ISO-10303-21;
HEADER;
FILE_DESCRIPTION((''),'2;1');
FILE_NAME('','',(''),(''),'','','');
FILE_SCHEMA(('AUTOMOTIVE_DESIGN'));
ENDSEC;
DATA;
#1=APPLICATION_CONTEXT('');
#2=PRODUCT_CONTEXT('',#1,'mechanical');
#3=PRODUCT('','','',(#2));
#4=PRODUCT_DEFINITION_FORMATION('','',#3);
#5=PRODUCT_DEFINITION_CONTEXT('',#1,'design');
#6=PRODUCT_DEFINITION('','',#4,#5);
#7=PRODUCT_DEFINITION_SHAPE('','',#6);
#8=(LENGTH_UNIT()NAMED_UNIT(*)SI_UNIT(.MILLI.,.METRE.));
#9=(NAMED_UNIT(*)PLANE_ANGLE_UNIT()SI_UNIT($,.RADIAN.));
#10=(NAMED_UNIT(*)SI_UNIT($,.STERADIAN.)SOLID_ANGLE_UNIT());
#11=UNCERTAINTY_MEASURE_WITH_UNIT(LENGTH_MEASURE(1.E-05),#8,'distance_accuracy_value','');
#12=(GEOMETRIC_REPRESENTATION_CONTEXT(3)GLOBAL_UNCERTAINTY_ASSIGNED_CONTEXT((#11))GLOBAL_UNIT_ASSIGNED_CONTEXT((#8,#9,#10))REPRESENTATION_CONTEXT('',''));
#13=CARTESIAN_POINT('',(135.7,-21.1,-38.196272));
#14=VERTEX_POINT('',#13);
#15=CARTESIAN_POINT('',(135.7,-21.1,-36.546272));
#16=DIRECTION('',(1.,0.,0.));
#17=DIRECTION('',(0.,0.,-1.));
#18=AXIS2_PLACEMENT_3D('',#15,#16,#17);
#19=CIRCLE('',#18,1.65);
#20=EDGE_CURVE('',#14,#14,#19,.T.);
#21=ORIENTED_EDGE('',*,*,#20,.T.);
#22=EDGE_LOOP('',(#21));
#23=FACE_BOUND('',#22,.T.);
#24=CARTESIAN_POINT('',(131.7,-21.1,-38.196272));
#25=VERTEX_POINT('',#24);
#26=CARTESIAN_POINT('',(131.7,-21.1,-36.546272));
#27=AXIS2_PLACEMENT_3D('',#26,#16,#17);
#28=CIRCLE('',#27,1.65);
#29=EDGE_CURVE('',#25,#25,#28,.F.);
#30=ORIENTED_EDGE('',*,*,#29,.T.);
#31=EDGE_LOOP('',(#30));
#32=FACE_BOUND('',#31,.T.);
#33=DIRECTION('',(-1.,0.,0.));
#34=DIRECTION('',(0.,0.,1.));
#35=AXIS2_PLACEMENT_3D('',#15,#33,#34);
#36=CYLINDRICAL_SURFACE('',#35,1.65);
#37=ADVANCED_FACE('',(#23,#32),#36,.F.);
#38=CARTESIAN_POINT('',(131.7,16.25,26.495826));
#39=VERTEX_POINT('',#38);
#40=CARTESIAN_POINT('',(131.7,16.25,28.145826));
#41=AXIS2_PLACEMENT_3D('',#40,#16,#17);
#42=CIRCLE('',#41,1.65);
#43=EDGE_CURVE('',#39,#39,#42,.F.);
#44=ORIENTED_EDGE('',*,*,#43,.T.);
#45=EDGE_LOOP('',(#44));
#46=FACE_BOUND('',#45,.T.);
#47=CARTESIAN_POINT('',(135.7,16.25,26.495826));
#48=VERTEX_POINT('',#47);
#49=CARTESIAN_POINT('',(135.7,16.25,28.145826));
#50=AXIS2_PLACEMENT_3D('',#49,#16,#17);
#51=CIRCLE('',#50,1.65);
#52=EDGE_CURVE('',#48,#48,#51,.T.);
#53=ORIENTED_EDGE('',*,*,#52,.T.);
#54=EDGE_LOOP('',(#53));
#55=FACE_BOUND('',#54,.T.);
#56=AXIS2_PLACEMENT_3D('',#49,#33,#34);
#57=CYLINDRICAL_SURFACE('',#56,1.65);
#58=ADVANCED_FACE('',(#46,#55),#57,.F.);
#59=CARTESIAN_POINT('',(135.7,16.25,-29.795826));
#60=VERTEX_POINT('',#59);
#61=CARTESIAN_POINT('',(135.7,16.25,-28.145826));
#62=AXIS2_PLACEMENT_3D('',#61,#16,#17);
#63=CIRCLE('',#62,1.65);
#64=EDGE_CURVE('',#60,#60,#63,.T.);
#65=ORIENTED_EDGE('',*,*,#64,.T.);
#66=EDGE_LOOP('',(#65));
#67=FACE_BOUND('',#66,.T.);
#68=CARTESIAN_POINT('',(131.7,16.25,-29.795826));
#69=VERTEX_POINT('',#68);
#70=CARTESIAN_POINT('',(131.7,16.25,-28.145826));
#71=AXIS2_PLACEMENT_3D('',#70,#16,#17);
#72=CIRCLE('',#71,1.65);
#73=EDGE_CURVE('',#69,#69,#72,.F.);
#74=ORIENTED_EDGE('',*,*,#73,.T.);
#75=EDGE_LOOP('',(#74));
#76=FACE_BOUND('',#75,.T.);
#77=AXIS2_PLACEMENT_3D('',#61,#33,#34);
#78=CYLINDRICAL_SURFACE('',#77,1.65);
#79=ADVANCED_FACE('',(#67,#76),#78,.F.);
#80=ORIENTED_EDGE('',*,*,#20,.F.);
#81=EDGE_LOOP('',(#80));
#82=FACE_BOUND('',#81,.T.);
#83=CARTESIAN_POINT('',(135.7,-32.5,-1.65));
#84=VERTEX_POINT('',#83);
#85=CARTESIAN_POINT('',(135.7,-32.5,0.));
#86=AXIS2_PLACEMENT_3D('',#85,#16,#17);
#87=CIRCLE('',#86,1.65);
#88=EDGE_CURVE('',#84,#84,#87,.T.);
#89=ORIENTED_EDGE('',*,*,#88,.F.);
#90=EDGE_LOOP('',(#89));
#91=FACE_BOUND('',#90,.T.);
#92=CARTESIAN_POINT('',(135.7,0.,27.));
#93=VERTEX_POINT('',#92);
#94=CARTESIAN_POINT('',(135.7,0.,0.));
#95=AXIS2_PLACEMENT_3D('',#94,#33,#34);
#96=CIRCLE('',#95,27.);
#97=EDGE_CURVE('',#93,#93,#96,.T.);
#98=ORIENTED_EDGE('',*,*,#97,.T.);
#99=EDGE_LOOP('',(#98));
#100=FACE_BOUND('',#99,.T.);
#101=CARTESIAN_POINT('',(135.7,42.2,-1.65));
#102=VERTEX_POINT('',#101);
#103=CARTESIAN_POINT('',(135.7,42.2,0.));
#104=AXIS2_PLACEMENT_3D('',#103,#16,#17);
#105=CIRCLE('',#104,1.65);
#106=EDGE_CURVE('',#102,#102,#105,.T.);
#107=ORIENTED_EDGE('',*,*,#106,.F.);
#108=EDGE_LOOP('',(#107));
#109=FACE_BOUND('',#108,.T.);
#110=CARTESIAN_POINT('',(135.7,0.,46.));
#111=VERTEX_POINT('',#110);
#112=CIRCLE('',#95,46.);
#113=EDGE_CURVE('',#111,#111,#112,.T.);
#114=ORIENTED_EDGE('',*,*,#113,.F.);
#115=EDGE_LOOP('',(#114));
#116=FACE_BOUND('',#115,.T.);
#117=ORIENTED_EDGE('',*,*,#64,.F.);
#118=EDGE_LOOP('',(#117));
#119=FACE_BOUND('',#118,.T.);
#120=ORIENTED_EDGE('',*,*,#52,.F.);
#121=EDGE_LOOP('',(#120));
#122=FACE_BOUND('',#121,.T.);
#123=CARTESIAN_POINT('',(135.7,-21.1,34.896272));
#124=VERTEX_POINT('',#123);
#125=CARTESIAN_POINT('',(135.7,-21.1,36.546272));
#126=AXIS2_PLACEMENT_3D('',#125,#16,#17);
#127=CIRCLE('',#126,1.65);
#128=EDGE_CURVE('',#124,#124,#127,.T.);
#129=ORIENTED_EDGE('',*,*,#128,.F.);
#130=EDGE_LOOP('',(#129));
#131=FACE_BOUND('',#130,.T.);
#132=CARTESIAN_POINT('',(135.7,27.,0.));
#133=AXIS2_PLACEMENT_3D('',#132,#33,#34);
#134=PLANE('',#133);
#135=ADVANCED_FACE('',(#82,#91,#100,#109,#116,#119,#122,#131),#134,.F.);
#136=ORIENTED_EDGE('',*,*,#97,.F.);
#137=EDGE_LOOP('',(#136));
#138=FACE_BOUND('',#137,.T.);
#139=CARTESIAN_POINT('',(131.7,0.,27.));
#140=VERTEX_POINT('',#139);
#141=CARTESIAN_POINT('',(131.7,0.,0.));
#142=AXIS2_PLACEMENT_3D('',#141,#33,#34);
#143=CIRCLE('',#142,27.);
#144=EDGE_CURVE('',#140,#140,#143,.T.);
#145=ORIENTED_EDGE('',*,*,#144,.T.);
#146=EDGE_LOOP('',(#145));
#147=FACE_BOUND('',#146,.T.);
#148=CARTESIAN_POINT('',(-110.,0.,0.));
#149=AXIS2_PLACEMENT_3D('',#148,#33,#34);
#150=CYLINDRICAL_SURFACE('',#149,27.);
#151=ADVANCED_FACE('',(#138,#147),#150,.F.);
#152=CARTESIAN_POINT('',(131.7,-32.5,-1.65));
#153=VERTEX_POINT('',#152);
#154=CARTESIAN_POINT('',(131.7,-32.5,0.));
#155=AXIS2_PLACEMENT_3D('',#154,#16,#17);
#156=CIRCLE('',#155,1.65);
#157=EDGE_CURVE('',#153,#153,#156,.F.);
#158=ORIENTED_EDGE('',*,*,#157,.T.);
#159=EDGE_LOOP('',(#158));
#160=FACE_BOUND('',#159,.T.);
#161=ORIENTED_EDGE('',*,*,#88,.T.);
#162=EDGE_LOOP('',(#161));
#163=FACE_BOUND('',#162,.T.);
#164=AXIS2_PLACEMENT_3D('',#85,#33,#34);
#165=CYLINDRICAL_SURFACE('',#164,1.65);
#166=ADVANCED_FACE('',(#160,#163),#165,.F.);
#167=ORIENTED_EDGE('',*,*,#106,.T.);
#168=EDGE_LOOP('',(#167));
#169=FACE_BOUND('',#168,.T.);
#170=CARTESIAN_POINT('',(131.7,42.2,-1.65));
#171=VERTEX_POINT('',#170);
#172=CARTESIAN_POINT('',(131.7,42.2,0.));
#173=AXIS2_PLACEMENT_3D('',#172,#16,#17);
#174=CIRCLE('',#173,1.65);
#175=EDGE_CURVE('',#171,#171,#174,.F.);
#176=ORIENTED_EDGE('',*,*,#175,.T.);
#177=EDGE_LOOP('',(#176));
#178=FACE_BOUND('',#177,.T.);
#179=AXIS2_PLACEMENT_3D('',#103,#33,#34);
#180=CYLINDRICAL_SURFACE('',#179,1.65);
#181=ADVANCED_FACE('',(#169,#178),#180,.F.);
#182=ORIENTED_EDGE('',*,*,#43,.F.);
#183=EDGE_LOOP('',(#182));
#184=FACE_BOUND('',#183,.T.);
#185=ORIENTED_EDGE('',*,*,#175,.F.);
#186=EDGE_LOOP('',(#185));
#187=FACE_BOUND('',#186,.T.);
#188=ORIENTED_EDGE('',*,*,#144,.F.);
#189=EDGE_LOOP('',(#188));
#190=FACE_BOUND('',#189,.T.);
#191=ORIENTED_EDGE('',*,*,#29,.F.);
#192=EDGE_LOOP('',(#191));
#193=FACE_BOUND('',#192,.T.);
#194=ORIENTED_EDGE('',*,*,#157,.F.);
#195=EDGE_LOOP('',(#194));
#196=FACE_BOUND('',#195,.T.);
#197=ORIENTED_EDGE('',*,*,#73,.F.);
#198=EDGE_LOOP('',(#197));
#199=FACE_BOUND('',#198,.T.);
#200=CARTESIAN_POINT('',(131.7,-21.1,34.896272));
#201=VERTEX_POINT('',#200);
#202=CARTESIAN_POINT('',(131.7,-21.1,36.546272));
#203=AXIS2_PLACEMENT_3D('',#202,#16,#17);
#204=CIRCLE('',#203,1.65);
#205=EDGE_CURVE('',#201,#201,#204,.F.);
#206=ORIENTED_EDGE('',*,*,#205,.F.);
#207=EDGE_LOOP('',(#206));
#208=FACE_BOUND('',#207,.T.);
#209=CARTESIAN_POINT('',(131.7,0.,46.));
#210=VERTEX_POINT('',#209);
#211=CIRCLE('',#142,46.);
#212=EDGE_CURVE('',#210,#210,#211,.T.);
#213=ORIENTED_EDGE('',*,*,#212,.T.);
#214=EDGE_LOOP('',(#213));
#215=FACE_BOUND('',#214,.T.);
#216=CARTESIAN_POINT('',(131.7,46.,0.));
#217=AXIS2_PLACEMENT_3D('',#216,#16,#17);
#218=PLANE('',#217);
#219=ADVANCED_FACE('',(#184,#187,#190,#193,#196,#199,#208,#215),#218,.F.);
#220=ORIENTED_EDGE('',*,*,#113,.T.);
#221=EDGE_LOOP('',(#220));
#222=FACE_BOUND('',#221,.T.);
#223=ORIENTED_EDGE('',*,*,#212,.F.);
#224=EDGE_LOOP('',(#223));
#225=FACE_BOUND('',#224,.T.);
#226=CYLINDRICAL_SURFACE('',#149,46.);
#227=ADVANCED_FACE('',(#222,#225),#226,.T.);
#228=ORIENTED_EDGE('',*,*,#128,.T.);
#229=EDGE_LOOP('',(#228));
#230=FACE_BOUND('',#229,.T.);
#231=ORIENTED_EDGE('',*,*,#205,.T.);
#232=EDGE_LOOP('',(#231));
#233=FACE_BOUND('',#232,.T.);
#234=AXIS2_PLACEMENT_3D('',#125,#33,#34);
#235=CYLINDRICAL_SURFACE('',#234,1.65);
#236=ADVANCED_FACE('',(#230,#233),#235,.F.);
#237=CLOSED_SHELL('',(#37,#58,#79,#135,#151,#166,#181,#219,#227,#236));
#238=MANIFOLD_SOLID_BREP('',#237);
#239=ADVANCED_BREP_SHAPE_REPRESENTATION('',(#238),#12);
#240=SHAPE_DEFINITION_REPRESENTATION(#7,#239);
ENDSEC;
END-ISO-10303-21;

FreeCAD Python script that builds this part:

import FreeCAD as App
import Part
import Sketcher

doc = App.newDocument("Part")
body = doc.addObject("PartDesign::Body", "Body")

sketch1 = body.newObject("Sketcher::SketchObject", "Sketch")
sketch1.AttachmentSupport = (doc.getObject("XY_Plane"), [""])
sketch1.MapMode = "FlatFace"
sketch1.addGeometry([
    Part.LineSegment(App.Vector(131.7, 46, 0), App.Vector(131.7, 27, 0)),
    Part.LineSegment(App.Vector(131.7, 27, 0), App.Vector(135.7, 27, 0)),
    Part.LineSegment(App.Vector(135.7, 27, 0), App.Vector(135.7, 46, 0)),
    Part.LineSegment(App.Vector(135.7, 46, 0), App.Vector(131.7, 46, 0)),
], False)
sketch1.addConstraint([
    Sketcher.Constraint("Coincident", 0, 2, 1, 1),
    Sketcher.Constraint("Coincident", 1, 2, 2, 1),
    Sketcher.Constraint("Coincident", 2, 2, 3, 1),
    Sketcher.Constraint("Coincident", 3, 2, 0, 1),
    Sketcher.Constraint("Vertical", 0),
    Sketcher.Constraint("Horizontal", 1),
    Sketcher.Constraint("Vertical", 2),
    Sketcher.Constraint("Horizontal", 3),
    Sketcher.Constraint("DistanceX", 1, 1, 1, 2, 4.0),
    Sketcher.Constraint("DistanceY", 0, 2, 0, 1, 19.0),
    Sketcher.Constraint("DistanceY", -1, 1, 0, 2, 27.0),
    Sketcher.Constraint("DistanceX", -1, 1, 0, 2, 131.7),
])
revolution = body.newObject("PartDesign::Revolution", "Revolution")
revolution.Profile = sketch1
revolution.ReferenceAxis = (sketch1, ["H_Axis"])
revolution.Angle = 360

sketch2 = body.newObject("Sketcher::SketchObject", "Sketch001")
sketch2.AttachmentSupport = (doc.getObject("YZ_Plane"), [""])
sketch2.MapMode = "FlatFace"
sketch2.addGeometry([
    Part.Circle(App.Vector(42.2, 0, 0), App.Vector(0, 0, 1), 1.65),
    Part.Circle(App.Vector(-21.1, 36.546272, 0), App.Vector(0, 0, 1), 1.65),
    Part.Circle(App.Vector(-21.1, -36.546272, 0), App.Vector(0, 0, 1), 1.65),
    Part.Circle(App.Vector(16.25, 28.145826, 0), App.Vector(0, 0, 1), 1.65),
    Part.Circle(App.Vector(-32.5, 0, 0), App.Vector(0, 0, 1), 1.65),
    Part.Circle(App.Vector(16.25, -28.145826, 0), App.Vector(0, 0, 1), 1.65),
], False)
sketch2.addConstraint([
    Sketcher.Constraint("Equal", 0, 1),
    Sketcher.Constraint("Equal", 1, 2),
    Sketcher.Constraint("Equal", 2, 3),
    Sketcher.Constraint("Equal", 3, 4),
    Sketcher.Constraint("Equal", 4, 5),
    Sketcher.Constraint("Symmetric", 1, 3, 2, 3, -1),
    Sketcher.Constraint("Symmetric", 3, 3, 5, 3, -1),
    Sketcher.Constraint("PointOnObject", 0, 3, -1),
    Sketcher.Constraint("PointOnObject", 4, 3, -1),
    Sketcher.Constraint("Diameter", 0, 3.3),
    Sketcher.Constraint("DistanceX", -1, 1, 0, 3, 42.2),
    Sketcher.Constraint("DistanceX", 1, 3, -1, 1, 21.1),
    Sketcher.Constraint("DistanceX", 4, 3, -1, 1, 32.5),
    Sketcher.Constraint("DistanceX", -1, 1, 3, 3, 16.25),
    Sketcher.Constraint("DistanceY", 5, 3, 3, 3, 56.291651),
    Sketcher.Constraint("DistanceY", -1, 1, 1, 3, 36.546272),
])
pocket1 = body.newObject("PartDesign::Pocket", "Pocket")
pocket1.Profile = sketch2
pocket1.Type = "ThroughAll"
pocket1.Midplane = True

doc.recompute()
